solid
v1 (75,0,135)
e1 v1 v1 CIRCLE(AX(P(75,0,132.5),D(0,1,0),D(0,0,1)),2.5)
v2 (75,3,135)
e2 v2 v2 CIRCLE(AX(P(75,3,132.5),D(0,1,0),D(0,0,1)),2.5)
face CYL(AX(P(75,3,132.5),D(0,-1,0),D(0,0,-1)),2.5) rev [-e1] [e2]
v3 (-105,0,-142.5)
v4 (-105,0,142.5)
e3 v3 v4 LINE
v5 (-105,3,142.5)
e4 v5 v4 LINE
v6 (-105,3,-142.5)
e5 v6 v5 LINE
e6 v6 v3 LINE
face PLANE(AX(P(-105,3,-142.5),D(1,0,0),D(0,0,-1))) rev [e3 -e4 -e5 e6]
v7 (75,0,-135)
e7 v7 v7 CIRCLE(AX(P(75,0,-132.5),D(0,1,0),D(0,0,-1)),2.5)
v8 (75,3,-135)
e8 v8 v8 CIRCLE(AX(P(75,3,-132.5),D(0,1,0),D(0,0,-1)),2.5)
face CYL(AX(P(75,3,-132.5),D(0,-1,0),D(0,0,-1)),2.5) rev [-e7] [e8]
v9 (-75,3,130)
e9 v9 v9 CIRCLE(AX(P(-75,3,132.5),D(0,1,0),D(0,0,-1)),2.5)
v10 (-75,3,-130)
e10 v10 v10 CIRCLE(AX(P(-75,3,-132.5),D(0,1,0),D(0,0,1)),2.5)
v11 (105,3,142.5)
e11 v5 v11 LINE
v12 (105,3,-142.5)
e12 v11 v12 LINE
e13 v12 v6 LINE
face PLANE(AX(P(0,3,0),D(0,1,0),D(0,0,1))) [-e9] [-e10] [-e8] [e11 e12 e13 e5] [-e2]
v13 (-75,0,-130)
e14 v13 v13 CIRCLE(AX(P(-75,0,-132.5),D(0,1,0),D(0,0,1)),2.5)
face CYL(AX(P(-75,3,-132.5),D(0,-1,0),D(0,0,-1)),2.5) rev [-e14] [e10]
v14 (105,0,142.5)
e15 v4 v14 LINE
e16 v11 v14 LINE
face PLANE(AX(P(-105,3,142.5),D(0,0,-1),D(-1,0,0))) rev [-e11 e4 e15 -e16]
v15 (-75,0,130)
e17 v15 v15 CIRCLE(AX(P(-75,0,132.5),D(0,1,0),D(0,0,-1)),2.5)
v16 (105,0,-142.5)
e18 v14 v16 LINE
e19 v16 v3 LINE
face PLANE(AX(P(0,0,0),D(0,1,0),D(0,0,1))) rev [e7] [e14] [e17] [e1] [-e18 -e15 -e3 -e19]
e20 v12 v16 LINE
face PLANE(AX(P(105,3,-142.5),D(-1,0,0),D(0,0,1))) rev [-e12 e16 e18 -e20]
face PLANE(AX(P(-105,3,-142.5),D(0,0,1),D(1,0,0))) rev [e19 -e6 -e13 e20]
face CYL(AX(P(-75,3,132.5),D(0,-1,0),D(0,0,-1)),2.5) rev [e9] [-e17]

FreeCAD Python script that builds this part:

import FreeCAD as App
import Part
import Sketcher
from FreeCAD import Vector
Q = App.Units.Quantity


def add_polygon(sketch, points):
    """Adds a closed chain of lines whose ends are joined by coincident constraints."""
    first, n = sketch.GeometryCount, len(points)
    for a, b in zip(points, points[1:] + points[:1]):
        sketch.addGeometry(Part.LineSegment(App.Vector(*a, 0), App.Vector(*b, 0)), False)
    for i in range(n):
        sketch.addConstraint(Sketcher.Constraint("Coincident", first + i, 2, first + (i + 1) % n, 1))

doc = App.newDocument("Part")
params = doc.addObject("Spreadsheet::Sheet", "Params")
for row, (alias, value) in enumerate([
    ("sketch1_diameter", "5 mm"),
    ("sketch1_width", "210 mm"),
    ("sketch1_height", "285 mm"),
    ("pad1_length", "3 mm"),
], start=1):
    params.set(f"A{row}", alias)
    params.set(f"B{row}", "=" + value)
    params.setAlias(f"B{row}", alias)

body = doc.addObject("PartDesign::Body", "Body")

# Sketch on XZ plane
sketch1 = body.newObject("Sketcher::SketchObject", "Sketch")
sketch1.AttachmentSupport = (doc.getObject("XZ_Plane"), [""])
sketch1.MapMode = "FlatFace"
add_polygon(sketch1, [(-105, -142.5), (-105, 142.5), (105, 142.5), (105, -142.5)])  # lines 0-3
sketch1.addGeometry(Part.Circle(Vector(-75, 132.5, 0), Vector(0, 0, 1), 2.5), False)  # 4
sketch1.addGeometry(Part.Circle(Vector(75, 132.5, 0), Vector(0, 0, 1), 2.5), False)  # 5
sketch1.addGeometry(Part.Circle(Vector(-75, -132.5, 0), Vector(0, 0, 1), 2.5), False)  # 6
sketch1.addGeometry(Part.Circle(Vector(75, -132.5, 0), Vector(0, 0, 1), 2.5), False)  # 7
sketch1.addConstraint([
    Sketcher.Constraint("Vertical", 0),
    Sketcher.Constraint("Horizontal", 1),
    Sketcher.Constraint("Vertical", 2),
    Sketcher.Constraint("Horizontal", 3),
    Sketcher.Constraint("Equal", 4, 5),
    Sketcher.Constraint("Equal", 5, 6),
    Sketcher.Constraint("Equal", 6, 7),
    Sketcher.Constraint("Symmetric", 5, 3, 6, 3, -1, 1),
    Sketcher.Constraint("Symmetric", 4, 3, 7, 3, -1, 1),
    Sketcher.Constraint("Symmetric", 0, 2, 2, 2, -1, 1),
    Sketcher.Constraint("Symmetric", 4, 3, 5, 3, -2),
    Sketcher.Constraint("Diameter", 4, Q("5 mm")),
    Sketcher.Constraint("DistanceX", 1, 1, 1, 2, Q("210 mm")),
    Sketcher.Constraint("DistanceY", 0, 1, 0, 2, Q("285 mm")),
    Sketcher.Constraint("DistanceX", 4, 3, -1, 1, Q("75 mm")),
    Sketcher.Constraint("DistanceY", 6, 3, 4, 3, Q("265 mm")),
])
sketch1.setExpression("Constraints[15]", "Params.sketch1_diameter")
sketch1.setExpression("Constraints[16]", "Params.sketch1_width")
sketch1.setExpression("Constraints[17]", "Params.sketch1_height")
pad1 = body.newObject("PartDesign::Pad", "Pad")
pad1.Profile = sketch1
pad1.setExpression("Length", "Params.pad1_length")
pad1.Reversed = True

doc.recompute()
